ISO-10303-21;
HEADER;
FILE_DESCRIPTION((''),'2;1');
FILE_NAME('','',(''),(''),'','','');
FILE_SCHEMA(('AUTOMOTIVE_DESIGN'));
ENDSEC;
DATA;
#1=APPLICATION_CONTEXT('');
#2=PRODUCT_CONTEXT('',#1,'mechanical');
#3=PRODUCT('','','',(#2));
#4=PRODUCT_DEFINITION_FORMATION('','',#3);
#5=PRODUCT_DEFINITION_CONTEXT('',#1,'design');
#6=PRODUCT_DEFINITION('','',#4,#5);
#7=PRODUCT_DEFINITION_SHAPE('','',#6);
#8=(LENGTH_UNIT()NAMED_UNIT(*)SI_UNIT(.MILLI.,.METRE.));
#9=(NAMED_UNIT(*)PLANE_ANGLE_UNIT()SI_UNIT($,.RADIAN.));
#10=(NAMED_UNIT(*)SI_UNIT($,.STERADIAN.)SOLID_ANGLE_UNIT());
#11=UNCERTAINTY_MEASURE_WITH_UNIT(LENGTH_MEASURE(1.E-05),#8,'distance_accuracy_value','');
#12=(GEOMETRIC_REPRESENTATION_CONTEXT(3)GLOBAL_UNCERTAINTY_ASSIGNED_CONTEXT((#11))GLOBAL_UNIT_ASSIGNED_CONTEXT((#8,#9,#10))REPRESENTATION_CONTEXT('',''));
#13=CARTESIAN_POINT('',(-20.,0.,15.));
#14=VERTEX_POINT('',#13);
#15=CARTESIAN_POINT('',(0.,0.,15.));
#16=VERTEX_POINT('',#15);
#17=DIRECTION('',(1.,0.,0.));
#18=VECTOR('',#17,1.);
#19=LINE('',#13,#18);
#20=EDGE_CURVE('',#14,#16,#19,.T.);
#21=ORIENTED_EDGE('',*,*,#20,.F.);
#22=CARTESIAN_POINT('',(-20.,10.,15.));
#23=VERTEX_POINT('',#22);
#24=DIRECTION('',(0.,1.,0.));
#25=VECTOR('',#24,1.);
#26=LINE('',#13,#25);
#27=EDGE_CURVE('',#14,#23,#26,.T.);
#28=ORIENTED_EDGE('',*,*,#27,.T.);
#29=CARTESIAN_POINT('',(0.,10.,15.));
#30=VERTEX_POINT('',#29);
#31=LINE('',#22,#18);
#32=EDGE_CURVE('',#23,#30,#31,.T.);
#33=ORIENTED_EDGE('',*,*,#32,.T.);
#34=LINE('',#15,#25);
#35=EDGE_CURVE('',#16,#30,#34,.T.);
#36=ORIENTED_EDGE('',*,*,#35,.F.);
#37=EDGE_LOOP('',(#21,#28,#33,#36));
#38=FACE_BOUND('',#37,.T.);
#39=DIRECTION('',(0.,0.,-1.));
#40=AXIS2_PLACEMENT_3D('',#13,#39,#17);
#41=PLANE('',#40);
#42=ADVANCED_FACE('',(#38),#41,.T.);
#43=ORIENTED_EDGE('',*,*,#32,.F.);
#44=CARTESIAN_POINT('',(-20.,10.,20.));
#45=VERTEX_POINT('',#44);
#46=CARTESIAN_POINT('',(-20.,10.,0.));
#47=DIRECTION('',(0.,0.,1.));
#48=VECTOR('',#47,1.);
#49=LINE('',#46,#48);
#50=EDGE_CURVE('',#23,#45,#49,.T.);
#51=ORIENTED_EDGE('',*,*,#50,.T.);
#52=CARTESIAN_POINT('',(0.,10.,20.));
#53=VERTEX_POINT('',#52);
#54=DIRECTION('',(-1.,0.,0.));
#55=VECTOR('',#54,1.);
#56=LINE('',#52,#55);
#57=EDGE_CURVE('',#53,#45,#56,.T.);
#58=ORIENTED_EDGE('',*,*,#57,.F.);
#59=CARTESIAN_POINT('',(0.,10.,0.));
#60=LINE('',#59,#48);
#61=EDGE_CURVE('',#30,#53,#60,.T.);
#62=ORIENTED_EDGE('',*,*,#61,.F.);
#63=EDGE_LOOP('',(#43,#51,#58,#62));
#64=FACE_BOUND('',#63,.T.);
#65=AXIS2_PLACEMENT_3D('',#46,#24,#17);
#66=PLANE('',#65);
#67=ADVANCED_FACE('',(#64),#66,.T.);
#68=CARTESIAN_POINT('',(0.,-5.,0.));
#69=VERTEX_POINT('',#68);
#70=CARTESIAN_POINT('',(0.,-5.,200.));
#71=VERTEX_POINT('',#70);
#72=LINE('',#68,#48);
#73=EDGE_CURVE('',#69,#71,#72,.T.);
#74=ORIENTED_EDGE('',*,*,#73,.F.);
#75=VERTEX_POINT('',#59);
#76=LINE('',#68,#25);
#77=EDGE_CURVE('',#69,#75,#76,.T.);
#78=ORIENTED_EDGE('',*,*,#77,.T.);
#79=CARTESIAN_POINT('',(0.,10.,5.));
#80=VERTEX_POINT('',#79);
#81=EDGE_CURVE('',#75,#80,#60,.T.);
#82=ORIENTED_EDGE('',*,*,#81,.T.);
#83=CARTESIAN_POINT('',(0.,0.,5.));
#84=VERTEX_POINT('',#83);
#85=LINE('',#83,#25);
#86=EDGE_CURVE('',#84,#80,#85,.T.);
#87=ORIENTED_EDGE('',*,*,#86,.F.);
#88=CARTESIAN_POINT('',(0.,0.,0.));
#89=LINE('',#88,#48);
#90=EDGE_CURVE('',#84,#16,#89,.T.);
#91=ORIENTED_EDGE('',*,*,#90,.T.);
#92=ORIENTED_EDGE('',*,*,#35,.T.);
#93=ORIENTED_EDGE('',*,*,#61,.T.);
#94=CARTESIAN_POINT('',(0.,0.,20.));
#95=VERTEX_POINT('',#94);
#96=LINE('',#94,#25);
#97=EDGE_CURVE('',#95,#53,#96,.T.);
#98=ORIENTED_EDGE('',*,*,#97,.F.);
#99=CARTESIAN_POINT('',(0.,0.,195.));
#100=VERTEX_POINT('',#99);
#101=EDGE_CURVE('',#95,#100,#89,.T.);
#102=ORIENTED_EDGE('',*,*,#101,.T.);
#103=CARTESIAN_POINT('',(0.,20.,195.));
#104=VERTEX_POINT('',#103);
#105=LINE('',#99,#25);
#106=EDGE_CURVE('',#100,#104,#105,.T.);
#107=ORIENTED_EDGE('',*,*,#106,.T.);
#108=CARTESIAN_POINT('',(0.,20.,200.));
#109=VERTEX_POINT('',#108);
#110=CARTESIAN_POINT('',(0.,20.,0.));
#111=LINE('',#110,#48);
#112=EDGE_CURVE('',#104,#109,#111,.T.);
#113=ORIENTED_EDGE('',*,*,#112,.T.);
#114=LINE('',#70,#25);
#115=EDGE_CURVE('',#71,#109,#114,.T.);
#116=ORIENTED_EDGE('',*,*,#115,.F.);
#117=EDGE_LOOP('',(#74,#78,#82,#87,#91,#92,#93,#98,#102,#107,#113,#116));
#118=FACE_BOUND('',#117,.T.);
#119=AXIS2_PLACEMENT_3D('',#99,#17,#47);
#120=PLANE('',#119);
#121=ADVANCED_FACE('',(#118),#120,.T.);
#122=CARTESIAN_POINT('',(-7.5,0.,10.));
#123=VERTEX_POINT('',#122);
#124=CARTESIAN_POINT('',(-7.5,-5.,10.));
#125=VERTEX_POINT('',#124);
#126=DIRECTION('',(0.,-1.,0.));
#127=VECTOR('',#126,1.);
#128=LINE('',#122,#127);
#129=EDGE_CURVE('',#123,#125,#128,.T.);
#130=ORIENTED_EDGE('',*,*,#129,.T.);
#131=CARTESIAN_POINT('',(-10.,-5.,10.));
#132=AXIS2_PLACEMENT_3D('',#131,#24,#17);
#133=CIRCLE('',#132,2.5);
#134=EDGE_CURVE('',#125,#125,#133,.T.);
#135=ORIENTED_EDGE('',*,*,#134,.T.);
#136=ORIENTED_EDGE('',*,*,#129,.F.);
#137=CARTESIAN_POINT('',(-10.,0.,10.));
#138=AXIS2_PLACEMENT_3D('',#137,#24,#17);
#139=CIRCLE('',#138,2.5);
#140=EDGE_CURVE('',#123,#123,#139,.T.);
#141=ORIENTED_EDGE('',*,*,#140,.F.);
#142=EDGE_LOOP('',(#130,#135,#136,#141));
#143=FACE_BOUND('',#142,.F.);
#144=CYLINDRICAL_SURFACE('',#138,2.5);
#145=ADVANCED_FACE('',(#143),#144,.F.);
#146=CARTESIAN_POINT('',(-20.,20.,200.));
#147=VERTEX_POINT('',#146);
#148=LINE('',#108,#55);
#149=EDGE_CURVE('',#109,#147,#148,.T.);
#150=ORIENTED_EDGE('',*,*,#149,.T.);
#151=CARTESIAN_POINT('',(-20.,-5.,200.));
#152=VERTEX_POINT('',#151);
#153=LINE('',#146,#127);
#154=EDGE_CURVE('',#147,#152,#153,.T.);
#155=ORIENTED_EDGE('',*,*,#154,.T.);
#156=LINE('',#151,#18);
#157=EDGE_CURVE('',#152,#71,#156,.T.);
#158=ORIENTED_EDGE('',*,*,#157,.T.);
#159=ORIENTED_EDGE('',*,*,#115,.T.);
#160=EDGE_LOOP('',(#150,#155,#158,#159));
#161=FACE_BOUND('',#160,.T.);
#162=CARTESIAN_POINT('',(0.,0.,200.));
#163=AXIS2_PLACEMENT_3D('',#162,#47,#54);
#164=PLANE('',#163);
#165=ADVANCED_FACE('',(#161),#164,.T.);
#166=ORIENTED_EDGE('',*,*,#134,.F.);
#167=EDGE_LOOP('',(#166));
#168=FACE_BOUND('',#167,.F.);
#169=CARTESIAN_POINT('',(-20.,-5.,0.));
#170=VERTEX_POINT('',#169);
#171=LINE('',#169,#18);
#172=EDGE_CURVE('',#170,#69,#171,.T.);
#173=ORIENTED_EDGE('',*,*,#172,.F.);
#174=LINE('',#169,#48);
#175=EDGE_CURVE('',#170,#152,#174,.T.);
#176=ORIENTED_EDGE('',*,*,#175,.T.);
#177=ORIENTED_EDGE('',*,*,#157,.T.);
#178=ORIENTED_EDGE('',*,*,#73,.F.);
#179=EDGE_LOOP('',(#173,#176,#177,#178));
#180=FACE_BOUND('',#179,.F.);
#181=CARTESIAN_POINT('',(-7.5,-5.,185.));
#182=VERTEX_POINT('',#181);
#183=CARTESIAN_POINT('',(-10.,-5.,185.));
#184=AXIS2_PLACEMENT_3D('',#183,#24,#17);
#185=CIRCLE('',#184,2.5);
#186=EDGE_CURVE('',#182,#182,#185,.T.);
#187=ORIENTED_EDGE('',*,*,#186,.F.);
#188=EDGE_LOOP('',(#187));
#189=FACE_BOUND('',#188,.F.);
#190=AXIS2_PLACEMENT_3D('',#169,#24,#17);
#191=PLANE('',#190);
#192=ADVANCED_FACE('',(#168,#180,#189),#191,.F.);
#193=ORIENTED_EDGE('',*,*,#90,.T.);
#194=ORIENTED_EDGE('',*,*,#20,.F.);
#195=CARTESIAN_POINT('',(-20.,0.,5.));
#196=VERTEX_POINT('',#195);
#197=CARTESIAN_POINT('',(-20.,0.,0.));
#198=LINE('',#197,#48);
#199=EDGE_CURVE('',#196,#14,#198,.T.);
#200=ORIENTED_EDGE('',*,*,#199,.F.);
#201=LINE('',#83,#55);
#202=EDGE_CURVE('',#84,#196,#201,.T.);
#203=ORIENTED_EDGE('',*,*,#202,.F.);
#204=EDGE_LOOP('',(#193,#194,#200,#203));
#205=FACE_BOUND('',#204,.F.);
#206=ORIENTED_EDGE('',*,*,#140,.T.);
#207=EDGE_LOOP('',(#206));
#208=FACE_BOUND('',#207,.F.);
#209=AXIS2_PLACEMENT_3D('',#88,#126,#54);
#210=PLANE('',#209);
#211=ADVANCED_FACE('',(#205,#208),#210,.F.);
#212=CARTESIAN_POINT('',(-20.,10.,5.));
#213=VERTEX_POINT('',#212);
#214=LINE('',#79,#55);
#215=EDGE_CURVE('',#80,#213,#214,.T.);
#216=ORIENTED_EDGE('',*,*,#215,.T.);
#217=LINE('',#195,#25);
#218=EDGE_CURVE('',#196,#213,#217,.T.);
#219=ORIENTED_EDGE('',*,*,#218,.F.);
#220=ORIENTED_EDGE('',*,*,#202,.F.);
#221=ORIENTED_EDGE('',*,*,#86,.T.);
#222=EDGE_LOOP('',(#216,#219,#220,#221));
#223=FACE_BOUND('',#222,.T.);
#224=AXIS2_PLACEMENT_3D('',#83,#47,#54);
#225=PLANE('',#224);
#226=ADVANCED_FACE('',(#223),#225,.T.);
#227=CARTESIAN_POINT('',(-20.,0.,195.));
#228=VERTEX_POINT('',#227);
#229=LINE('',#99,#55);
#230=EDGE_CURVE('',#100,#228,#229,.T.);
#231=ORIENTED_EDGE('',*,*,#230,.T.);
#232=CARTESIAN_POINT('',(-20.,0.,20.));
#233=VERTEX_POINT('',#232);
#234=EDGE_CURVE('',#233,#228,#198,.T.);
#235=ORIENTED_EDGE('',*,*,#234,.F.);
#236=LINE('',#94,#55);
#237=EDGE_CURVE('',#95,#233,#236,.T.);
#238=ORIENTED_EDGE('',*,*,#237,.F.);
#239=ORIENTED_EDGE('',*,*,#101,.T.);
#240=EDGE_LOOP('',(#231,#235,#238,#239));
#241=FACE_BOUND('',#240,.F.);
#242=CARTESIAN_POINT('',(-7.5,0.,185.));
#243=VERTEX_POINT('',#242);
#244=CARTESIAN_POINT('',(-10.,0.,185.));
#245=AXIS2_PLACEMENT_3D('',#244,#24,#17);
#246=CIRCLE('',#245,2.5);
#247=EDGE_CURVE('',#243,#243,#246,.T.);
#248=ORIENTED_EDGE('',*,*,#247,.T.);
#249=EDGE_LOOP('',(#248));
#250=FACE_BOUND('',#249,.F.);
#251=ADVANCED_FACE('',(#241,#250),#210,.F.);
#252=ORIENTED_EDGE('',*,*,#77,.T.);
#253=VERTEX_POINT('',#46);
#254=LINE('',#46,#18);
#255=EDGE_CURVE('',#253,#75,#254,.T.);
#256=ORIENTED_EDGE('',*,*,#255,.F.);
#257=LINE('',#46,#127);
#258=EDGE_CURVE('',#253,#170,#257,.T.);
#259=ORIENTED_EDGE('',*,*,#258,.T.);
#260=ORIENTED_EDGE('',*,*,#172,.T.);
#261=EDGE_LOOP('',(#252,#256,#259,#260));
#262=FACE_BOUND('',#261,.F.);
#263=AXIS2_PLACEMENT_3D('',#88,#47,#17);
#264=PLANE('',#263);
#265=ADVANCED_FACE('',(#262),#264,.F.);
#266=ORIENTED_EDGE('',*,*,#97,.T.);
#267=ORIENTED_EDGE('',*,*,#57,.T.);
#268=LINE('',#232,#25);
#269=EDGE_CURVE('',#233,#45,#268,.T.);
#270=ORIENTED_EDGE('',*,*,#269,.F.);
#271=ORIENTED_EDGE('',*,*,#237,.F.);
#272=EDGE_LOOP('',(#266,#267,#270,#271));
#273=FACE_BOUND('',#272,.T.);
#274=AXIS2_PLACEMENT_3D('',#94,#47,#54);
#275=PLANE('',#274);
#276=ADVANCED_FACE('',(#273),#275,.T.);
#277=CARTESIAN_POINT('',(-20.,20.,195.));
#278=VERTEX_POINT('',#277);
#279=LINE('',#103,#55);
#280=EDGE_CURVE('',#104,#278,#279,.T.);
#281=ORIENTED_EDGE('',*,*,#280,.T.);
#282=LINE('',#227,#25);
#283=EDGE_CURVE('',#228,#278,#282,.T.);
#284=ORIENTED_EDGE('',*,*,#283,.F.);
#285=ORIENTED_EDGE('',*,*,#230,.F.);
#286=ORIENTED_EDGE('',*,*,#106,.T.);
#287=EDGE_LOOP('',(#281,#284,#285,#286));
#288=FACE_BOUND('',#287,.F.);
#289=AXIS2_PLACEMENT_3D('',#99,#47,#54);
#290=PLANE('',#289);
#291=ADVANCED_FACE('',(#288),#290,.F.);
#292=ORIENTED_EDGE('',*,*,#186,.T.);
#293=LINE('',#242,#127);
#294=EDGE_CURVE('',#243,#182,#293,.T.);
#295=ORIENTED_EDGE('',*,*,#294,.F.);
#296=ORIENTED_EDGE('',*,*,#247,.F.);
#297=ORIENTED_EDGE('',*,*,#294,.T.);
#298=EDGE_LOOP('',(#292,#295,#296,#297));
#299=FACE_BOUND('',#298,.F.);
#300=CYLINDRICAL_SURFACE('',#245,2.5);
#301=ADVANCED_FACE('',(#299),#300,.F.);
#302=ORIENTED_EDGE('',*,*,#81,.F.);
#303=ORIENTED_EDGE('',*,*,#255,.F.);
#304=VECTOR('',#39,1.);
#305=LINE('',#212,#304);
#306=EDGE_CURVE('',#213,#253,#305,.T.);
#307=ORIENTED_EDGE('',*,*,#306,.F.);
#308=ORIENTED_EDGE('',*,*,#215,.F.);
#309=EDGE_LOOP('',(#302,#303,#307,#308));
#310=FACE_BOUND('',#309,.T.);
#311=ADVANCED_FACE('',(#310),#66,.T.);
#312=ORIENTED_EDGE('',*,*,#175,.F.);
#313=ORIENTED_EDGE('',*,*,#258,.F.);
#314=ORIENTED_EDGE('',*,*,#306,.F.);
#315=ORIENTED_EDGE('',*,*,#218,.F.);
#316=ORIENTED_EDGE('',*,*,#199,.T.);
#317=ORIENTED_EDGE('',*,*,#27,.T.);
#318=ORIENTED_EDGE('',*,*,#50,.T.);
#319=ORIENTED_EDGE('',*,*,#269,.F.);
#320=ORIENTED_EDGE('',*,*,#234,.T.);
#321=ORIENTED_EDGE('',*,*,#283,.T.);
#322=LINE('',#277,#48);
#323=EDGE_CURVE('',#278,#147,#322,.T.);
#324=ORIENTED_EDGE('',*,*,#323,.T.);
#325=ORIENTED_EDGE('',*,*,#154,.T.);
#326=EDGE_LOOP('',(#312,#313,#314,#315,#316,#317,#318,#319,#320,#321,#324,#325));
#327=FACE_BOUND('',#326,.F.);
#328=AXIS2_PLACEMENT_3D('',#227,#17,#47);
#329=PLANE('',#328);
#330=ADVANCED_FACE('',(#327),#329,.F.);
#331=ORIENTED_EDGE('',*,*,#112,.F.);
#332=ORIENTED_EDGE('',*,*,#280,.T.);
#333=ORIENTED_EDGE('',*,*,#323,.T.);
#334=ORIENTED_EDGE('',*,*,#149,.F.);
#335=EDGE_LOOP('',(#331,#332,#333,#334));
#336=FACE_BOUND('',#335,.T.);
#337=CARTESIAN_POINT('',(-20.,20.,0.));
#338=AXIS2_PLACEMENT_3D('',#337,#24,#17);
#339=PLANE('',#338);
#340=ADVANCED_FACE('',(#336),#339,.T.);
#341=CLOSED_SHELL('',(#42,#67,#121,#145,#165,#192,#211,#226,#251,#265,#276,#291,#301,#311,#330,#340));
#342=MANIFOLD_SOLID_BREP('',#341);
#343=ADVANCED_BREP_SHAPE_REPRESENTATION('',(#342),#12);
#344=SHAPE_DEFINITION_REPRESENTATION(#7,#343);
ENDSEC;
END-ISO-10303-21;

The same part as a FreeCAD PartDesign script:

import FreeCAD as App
import Part
import Sketcher

doc = App.newDocument("Part")
params = doc.addObject("Spreadsheet::Sheet", "Params")
for row, (alias, value) in enumerate([
    ("sketch1_width", "20 mm"),
    ("sketch1_height", "5 mm"),
    ("pad1_length", "200 mm"),
    ("sketch2_diameter", "5 mm"),
    ("pocket1_length", "200 mm"),
    ("sketch3_height", "5 mm"),
    ("sketch3_width", "20 mm"),
    ("pad2_length", "20 mm"),
    ("sketch4_height", "5 mm"),
    ("sketch4_width", "20 mm"),
    ("pad3_length", "10 mm"),
], start=1):
    params.set(f"A{row}", alias)
    params.set(f"B{row}", "=" + value)
    params.setAlias(f"B{row}", alias)

body = doc.addObject("PartDesign::Body", "Body")

# Sketch on XY plane
sketch1 = body.newObject("Sketcher::SketchObject", "Sketch")
sketch1.AttachmentSupport = (doc.getObject("XY_Plane"), [""])
sketch1.MapMode = "FlatFace"
sketch1.addGeometry([
    Part.LineSegment(App.Vector(0, -5, 0), App.Vector(0, 0, 0)),
    Part.LineSegment(App.Vector(0, 0, 0), App.Vector(-20, 0, 0)),
    Part.LineSegment(App.Vector(-20, 0, 0), App.Vector(-20, -5, 0)),
    Part.LineSegment(App.Vector(-20, -5, 0), App.Vector(0, -5, 0)),
], False)
sketch1.addConstraint([
    Sketcher.Constraint("Coincident", 0, 2, 1, 1),
    Sketcher.Constraint("Coincident", 1, 2, 2, 1),
    Sketcher.Constraint("Coincident", 2, 2, 3, 1),
    Sketcher.Constraint("Coincident", 3, 2, 0, 1),
    Sketcher.Constraint("Vertical", 0),
    Sketcher.Constraint("Horizontal", 1),
    Sketcher.Constraint("Vertical", 2),
    Sketcher.Constraint("Horizontal", 3),
    Sketcher.Constraint("Coincident", 0, 2, -1, 1),
    Sketcher.Constraint("DistanceX", 1, 2, 1, 1, 20.0),
    Sketcher.Constraint("DistanceY", 0, 1, 0, 2, 5.0),
])
sketch1.setExpression("Constraints[9]", "Params.sketch1_width")
sketch1.setExpression("Constraints[10]", "Params.sketch1_height")
pad1 = body.newObject("PartDesign::Pad", "Pad")
pad1.Profile = sketch1
pad1.setExpression("Length", "Params.pad1_length")

# Sketch on XZ plane
sketch2 = body.newObject("Sketcher::SketchObject", "Sketch001")
sketch2.AttachmentSupport = (doc.getObject("XZ_Plane"), [""])
sketch2.MapMode = "FlatFace"
sketch2.addGeometry([
    Part.Circle(App.Vector(-10, 185, 0), App.Vector(0, 0, 1), 2.5),
    Part.Circle(App.Vector(-10, 10, 0), App.Vector(0, 0, 1), 2.5),
], False)
sketch2.addConstraint([
    Sketcher.Constraint("Equal", 0, 1),
    Sketcher.Constraint("Vertical", 0, 3, 1, 3),
    Sketcher.Constraint("Diameter", 0, 5.0),
    Sketcher.Constraint("DistanceX", 0, 3, -1, 1, 10.0),
    Sketcher.Constraint("DistanceY", -1, 1, 1, 3, 10.0),
    Sketcher.Constraint("DistanceY", -1, 1, 0, 3, 185.0),
])
sketch2.setExpression("Constraints[2]", "Params.sketch2_diameter")
pocket1 = body.newObject("PartDesign::Pocket", "Pocket")
pocket1.Profile = sketch2
pocket1.setExpression("Length", "Params.pocket1_length")
pocket1.Reversed = True

# Sketch on XZ plane
sketch3 = body.newObject("Sketcher::SketchObject", "Sketch002")
sketch3.AttachmentSupport = (doc.getObject("XZ_Plane"), [""])
sketch3.MapMode = "FlatFace"
sketch3.addGeometry([
    Part.LineSegment(App.Vector(-20, 200, 0), App.Vector(0, 200, 0)),
    Part.LineSegment(App.Vector(0, 200, 0), App.Vector(0, 195, 0)),
    Part.LineSegment(App.Vector(0, 195, 0), App.Vector(-20, 195, 0)),
    Part.LineSegment(App.Vector(-20, 195, 0), App.Vector(-20, 200, 0)),
], False)
sketch3.addConstraint([
    Sketcher.Constraint("Coincident", 0, 2, 1, 1),
    Sketcher.Constraint("Coincident", 1, 2, 2, 1),
    Sketcher.Constraint("Coincident", 2, 2, 3, 1),
    Sketcher.Constraint("Coincident", 3, 2, 0, 1),
    Sketcher.Constraint("Horizontal", 0),
    Sketcher.Constraint("Vertical", 1),
    Sketcher.Constraint("Horizontal", 2),
    Sketcher.Constraint("Vertical", 3),
    Sketcher.Constraint("PointOnObject", 0, 2, -2),
    Sketcher.Constraint("DistanceY", 1, 2, 1, 1, 5.0),
    Sketcher.Constraint("DistanceX", 0, 1, 0, 2, 20.0),
    Sketcher.Constraint("DistanceY", -1, 1, 0, 2, 200.0),
])
sketch3.setExpression("Constraints[9]", "Params.sketch3_height")
sketch3.setExpression("Constraints[10]", "Params.sketch3_width")
pad2 = body.newObject("PartDesign::Pad", "Pad001")
pad2.Profile = sketch3
pad2.setExpression("Length", "Params.pad2_length")
pad2.Reversed = True

# Sketch on XZ plane
sketch4 = body.newObject("Sketcher::SketchObject", "Sketch003")
sketch4.AttachmentSupport = (doc.getObject("XZ_Plane"), [""])
sketch4.MapMode = "FlatFace"
sketch4.addGeometry([
    Part.LineSegment(App.Vector(0, 5, 0), App.Vector(0, 0, 0)),  # 0
    Part.LineSegment(App.Vector(0, 0, 0), App.Vector(-20, 0, 0)),  # 1
    Part.LineSegment(App.Vector(-20, 0, 0), App.Vector(-20, 5, 0)),  # 2
    Part.LineSegment(App.Vector(-20, 5, 0), App.Vector(0, 5, 0)),  # 3
    Part.LineSegment(App.Vector(0, 20, 0), App.Vector(0, 15, 0)),  # 4
    Part.LineSegment(App.Vector(0, 15, 0), App.Vector(-20, 15, 0)),  # 5
    Part.LineSegment(App.Vector(-20, 15, 0), App.Vector(-20, 20, 0)),  # 6
    Part.LineSegment(App.Vector(-20, 20, 0), App.Vector(0, 20, 0)),  # 7
], False)
sketch4.addConstraint([
    Sketcher.Constraint("Coincident", 0, 2, 1, 1),
    Sketcher.Constraint("Coincident", 1, 2, 2, 1),
    Sketcher.Constraint("Coincident", 2, 2, 3, 1),
    Sketcher.Constraint("Coincident", 3, 2, 0, 1),
    Sketcher.Constraint("Coincident", 4, 2, 5, 1),
    Sketcher.Constraint("Coincident", 5, 2, 6, 1),
    Sketcher.Constraint("Coincident", 6, 2, 7, 1),
    Sketcher.Constraint("Coincident", 7, 2, 4, 1),
    Sketcher.Constraint("Vertical", 0),
    Sketcher.Constraint("Horizontal", 1),
    Sketcher.Constraint("Vertical", 2),
    Sketcher.Constraint("Horizontal", 3),
    Sketcher.Constraint("Vertical", 4),
    Sketcher.Constraint("Horizontal", 5),
    Sketcher.Constraint("Vertical", 6),
    Sketcher.Constraint("Horizontal", 7),
    Sketcher.Constraint("Coincident", 0, 2, -1, 1),
    Sketcher.Constraint("PointOnObject", 4, 2, -2),
    Sketcher.Constraint("Vertical", 2, 2, 5, 2),
    Sketcher.Constraint("Equal", 2, 4),
    Sketcher.Constraint("DistanceY", 0, 2, 0, 1, 5.0),
    Sketcher.Constraint("DistanceY", 3, 2, 4, 2, 10.0),
    Sketcher.Constraint("DistanceX", 1, 2, 1, 1, 20.0),
])
sketch4.setExpression("Constraints[20]", "Params.sketch4_height")
sketch4.setExpression("Constraints[22]", "Params.sketch4_width")
pad3 = body.newObject("PartDesign::Pad", "Pad002")
pad3.Profile = sketch4
pad3.setExpression("Length", "Params.pad3_length")
pad3.Reversed = True

doc.recompute()
